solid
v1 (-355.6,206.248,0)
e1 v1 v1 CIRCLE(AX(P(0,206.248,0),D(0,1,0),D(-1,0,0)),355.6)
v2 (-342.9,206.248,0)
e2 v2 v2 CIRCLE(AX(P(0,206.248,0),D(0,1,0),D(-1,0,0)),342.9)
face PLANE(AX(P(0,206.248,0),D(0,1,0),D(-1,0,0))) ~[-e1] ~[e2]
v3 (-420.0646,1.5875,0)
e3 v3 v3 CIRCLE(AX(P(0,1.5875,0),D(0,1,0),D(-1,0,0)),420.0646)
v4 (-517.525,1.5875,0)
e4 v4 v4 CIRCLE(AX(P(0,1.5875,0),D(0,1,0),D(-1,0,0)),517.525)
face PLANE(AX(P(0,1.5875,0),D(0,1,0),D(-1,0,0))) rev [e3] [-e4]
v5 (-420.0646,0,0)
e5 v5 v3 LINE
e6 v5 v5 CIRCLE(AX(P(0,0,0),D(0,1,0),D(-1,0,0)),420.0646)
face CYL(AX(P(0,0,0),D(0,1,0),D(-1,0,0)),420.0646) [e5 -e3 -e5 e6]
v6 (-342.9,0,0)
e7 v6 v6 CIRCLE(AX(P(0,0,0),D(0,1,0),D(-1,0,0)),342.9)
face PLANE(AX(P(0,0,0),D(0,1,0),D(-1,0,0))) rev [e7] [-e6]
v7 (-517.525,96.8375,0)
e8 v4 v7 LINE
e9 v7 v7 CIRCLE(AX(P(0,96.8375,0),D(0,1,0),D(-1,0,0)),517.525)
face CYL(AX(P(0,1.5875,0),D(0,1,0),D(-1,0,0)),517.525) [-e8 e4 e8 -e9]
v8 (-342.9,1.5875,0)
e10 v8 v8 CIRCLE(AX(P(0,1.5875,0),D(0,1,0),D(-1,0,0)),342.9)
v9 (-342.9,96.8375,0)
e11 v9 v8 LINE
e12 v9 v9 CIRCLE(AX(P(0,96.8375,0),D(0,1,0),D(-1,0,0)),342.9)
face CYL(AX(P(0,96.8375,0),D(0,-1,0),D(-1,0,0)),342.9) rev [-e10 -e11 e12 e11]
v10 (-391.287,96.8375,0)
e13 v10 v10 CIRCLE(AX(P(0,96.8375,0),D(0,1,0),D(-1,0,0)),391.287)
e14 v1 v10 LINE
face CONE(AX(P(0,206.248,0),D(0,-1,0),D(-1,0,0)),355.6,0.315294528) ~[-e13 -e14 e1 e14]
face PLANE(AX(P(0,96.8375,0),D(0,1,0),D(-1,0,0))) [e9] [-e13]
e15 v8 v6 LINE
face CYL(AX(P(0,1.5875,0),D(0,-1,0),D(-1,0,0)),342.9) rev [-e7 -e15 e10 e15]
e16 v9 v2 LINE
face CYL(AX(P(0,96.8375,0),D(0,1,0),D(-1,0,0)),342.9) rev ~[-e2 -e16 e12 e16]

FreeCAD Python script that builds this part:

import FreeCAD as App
import Part
import Sketcher
from FreeCAD import Vector
Q = App.Units.Quantity


def add_polygon(sketch, points):
    """Adds a closed chain of lines whose ends are joined by coincident constraints."""
    first, n = sketch.GeometryCount, len(points)
    for a, b in zip(points, points[1:] + points[:1]):
        sketch.addGeometry(Part.LineSegment(App.Vector(*a, 0), App.Vector(*b, 0)), False)
    for i in range(n):
        sketch.addConstraint(Sketcher.Constraint("Coincident", first + i, 2, first + (i + 1) % n, 1))

doc = App.newDocument("Part")
body = doc.addObject("PartDesign::Body", "Body")

sketch1 = body.newObject("Sketcher::SketchObject", "Sketch")
sketch1.AttachmentSupport = (doc.getObject("XY_Plane"), [""])
sketch1.MapMode = "FlatFace"
add_polygon(sketch1, [(-420.1, 0), (-342.9, 0), (-342.9, 206.2), (-355.6, 206.2), (-391.3, 96.8), (-517.5, 96.8), (-517.5, 1.6), (-420.1, 1.6)])
sketch1.addConstraint(Sketcher.Constraint("Horizontal", 0))
sketch1.addConstraint(Sketcher.Constraint("Vertical", 1))
sketch1.addConstraint(Sketcher.Constraint("Horizontal", 2))
sketch1.addConstraint(Sketcher.Constraint("Horizontal", 4))
sketch1.addConstraint(Sketcher.Constraint("Vertical", 5))
sketch1.addConstraint(Sketcher.Constraint("Horizontal", 6))
sketch1.addConstraint(Sketcher.Constraint("Vertical", 7))
sketch1.addConstraint(Sketcher.Constraint("PointOnObject", 0, 2, -1))
sketch1.addConstraint(Sketcher.Constraint("DistanceX", 2, 2, -1, 1, Q("14 in")))
sketch1.addConstraint(Sketcher.Constraint("DistanceY", 1, 1, 1, 2, Q("8.12 in")))
sketch1.addConstraint(Sketcher.Constraint("DistanceY", 5, 2, 5, 1, Q("3.75 in")))
sketch1.addConstraint(Sketcher.Constraint("DistanceX", 0, 2, -1, 1, Q("13.5 in")))
sketch1.addConstraint(Sketcher.Constraint("DistanceY", 7, 2, 7, 1, Q("0.0625 in")))
sketch1.addConstraint(Sketcher.Constraint("DistanceX", 3, 2, -1, 1, Q("15.405 in")))
sketch1.addConstraint(Sketcher.Constraint("DistanceX", 4, 2, -1, 1, Q("20.375 in")))
sketch1.addConstraint(Sketcher.Constraint("DistanceX", 0, 1, 0, 2, 77.1646))
revolution = body.newObject("PartDesign::Revolution", "Revolution")
revolution.Profile = sketch1
revolution.ReferenceAxis = (sketch1, ["V_Axis"])
revolution.Angle = 360

doc.recompute()
